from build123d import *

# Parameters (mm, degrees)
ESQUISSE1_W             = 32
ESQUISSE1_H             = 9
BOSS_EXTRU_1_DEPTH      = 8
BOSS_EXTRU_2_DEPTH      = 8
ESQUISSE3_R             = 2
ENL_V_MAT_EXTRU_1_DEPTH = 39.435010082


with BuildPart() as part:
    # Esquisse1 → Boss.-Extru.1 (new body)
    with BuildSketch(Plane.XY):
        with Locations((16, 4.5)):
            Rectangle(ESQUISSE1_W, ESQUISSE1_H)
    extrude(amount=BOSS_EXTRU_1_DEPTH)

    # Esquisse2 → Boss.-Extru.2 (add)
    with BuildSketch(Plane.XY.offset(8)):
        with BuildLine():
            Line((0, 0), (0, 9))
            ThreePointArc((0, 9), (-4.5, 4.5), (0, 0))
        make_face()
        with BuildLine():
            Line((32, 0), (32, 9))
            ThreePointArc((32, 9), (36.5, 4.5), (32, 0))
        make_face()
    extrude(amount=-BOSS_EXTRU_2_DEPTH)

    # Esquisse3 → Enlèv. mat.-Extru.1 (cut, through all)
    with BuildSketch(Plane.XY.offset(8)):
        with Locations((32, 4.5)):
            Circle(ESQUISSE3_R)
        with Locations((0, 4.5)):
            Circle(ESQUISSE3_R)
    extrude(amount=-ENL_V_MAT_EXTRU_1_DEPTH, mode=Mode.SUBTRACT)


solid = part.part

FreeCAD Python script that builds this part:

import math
import FreeCAD as App
import Part
import Sketcher

V = App.Vector

doc = App.newDocument("Part")
body = doc.addObject("PartDesign::Body", "Body")

# Sketch on XY plane
sketch1 = body.newObject("Sketcher::SketchObject", "Sketch")
sketch1.AttachmentSupport = (doc.getObject("XY_Plane"), [""])
sketch1.MapMode = "FlatFace"
sketch1.addGeometry(Part.LineSegment(V(0, 9, 0), V(0, 0, 0)), False)
sketch1.addGeometry(Part.LineSegment(V(0, 0, 0), V(32, 0, 0)), False)
sketch1.addGeometry(Part.LineSegment(V(32, 0, 0), V(32, 9, 0)), False)
sketch1.addGeometry(Part.LineSegment(V(32, 9, 0), V(0, 9, 0)), False)
sketch1.addConstraint(Sketcher.Constraint("Coincident", 0, 2, 1, 1))
sketch1.addConstraint(Sketcher.Constraint("Coincident", 1, 2, 2, 1))
sketch1.addConstraint(Sketcher.Constraint("Coincident", 2, 2, 3, 1))
sketch1.addConstraint(Sketcher.Constraint("Coincident", 3, 2, 0, 1))
sketch1.addConstraint(Sketcher.Constraint("Vertical", 0))
sketch1.addConstraint(Sketcher.Constraint("Horizontal", 1))
sketch1.addConstraint(Sketcher.Constraint("Vertical", 2))
sketch1.addConstraint(Sketcher.Constraint("Horizontal", 3))
sketch1.addConstraint(Sketcher.Constraint("Coincident", 0, 2, -1, 1))
sketch1.addConstraint(Sketcher.Constraint("DistanceX", 1, 1, 1, 2, 32.0))
sketch1.addConstraint(Sketcher.Constraint("DistanceY", 0, 2, 0, 1, 9.0))
pad1 = body.newObject("PartDesign::Pad", "Pad")
pad1.Profile = sketch1
pad1.Length = 8

# Sketch on XY plane
sketch2 = body.newObject("Sketcher::SketchObject", "Sketch001")
sketch2.AttachmentSupport = (doc.getObject("XY_Plane"), [""])
sketch2.MapMode = "FlatFace"
sketch2.AttachmentOffset = App.Placement(V(0, 0, 8), App.Rotation())
sketch2.addGeometry(Part.LineSegment(V(0, 0, 0), V(0, 9, 0)), False)
sketch2.addGeometry(Part.ArcOfCircle(Part.Circle(V(0, 4.5, 0), V(0, 0, 1), 4.5), math.radians(90), math.radians(270)), False)
sketch2.addGeometry(Part.LineSegment(V(32, 9, 0), V(32, 0, 0)), False)
sketch2.addGeometry(Part.ArcOfCircle(Part.Circle(V(32, 4.5, 0), V(0, 0, 1), 4.5), math.radians(-90), math.radians(90)), False)
sketch2.addConstraint(Sketcher.Constraint("Coincident", 0, 1, 1, 2))
sketch2.addConstraint(Sketcher.Constraint("Coincident", 1, 1, 0, 2))
sketch2.addConstraint(Sketcher.Constraint("Coincident", 2, 1, 3, 2))
sketch2.addConstraint(Sketcher.Constraint("Coincident", 3, 1, 2, 2))
sketch2.addConstraint(Sketcher.Constraint("Vertical", 0))
sketch2.addConstraint(Sketcher.Constraint("Vertical", 2))
sketch2.addConstraint(Sketcher.Constraint("Coincident", 0, 1, -1, 1))
sketch2.addConstraint(Sketcher.Constraint("Equal", 1, 3))
sketch2.addConstraint(Sketcher.Constraint("PointOnObject", 1, 3, -2))
sketch2.addConstraint(Sketcher.Constraint("PointOnObject", 3, 1, -1))
sketch2.addConstraint(Sketcher.Constraint("Vertical", 3, 3, 2, 1))
sketch2.addConstraint(Sketcher.Constraint("Radius", 1, 4.5))
sketch2.addConstraint(Sketcher.Constraint("DistanceX", -1, 1, 3, 3, 32.0))
pad2 = body.newObject("PartDesign::Pad", "Pad001")
pad2.Profile = sketch2
pad2.Length = 8
pad2.Reversed = True

# Sketch on XY plane
sketch3 = body.newObject("Sketcher::SketchObject", "Sketch002")
sketch3.AttachmentSupport = (doc.getObject("XY_Plane"), [""])
sketch3.MapMode = "FlatFace"
sketch3.AttachmentOffset = App.Placement(V(0, 0, 8), App.Rotation())
sketch3.addGeometry(Part.Circle(V(32, 4.5, 0), V(0, 0, 1), 2), False)
sketch3.addGeometry(Part.Circle(V(0, 4.5, 0), V(0, 0, 1), 2), False)
sketch3.addConstraint(Sketcher.Constraint("Equal", 0, 1))
sketch3.addConstraint(Sketcher.Constraint("PointOnObject", 1, 3, -2))
sketch3.addConstraint(Sketcher.Constraint("Horizontal", 0, 3, 1, 3))
sketch3.addConstraint(Sketcher.Constraint("Diameter", 0, 4.0))
sketch3.addConstraint(Sketcher.Constraint("DistanceX", -1, 1, 0, 3, 32.0))
sketch3.addConstraint(Sketcher.Constraint("DistanceY", -1, 1, 0, 3, 4.5))
pocket1 = body.newObject("PartDesign::Pocket", "Pocket")
pocket1.Profile = sketch3
pocket1.Type = "ThroughAll"

doc.recompute()
